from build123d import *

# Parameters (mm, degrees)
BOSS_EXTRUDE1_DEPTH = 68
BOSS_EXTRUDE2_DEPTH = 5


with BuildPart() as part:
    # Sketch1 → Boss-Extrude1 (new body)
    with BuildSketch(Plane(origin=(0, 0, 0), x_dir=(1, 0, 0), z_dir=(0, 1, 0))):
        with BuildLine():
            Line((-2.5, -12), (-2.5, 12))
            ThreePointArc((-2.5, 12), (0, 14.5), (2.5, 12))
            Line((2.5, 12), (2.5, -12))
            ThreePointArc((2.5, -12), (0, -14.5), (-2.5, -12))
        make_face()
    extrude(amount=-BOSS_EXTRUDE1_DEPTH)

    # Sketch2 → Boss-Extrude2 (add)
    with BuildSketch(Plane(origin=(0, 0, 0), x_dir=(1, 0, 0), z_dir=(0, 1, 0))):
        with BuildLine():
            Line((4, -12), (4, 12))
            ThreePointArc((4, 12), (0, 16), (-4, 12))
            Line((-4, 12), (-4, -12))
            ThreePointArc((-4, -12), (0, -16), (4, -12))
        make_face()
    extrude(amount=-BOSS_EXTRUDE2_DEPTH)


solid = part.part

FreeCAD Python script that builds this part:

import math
import FreeCAD as App
import Part
import Sketcher
Q = App.Units.Quantity

doc = App.newDocument("Part")
body = doc.addObject("PartDesign::Body", "Body")

# Sketch on XZ plane
sketch1 = doc.addObject("Sketcher::SketchObject", "Sketch")
body.addObject(sketch1)
sketch1.AttachmentSupport = (doc.XZ_Plane, [""])
sketch1.MapMode = "FlatFace"
sketch1.addGeometry([
    Part.LineSegment(App.Vector(-2.5, -12, 0), App.Vector(-2.5, 12, 0)),
    Part.ArcOfCircle(Part.Circle(App.Vector(0, 12, 0), App.Vector(0, 0, 1), 2.5), math.radians(0), math.radians(180)),
    Part.LineSegment(App.Vector(2.5, 12, 0), App.Vector(2.5, -12, 0)),
    Part.ArcOfCircle(Part.Circle(App.Vector(0, -12, 0), App.Vector(0, 0, 1), 2.5), math.radians(180), math.radians(360)),
], False)
sketch1.addConstraint([
    Sketcher.Constraint("Tangent", 0, 2, 1, 2),
    Sketcher.Constraint("Tangent", 1, 1, 2, 1),
    Sketcher.Constraint("Tangent", 2, 2, 3, 2),
    Sketcher.Constraint("Tangent", 3, 1, 0, 1),
    Sketcher.Constraint("Vertical", 0),
    Sketcher.Constraint("Vertical", 2),
    Sketcher.Constraint("Symmetric", 1, 3, 3, 3, -1, 1),
    Sketcher.Constraint("Radius", 1, Q("2.5 mm")),
    Sketcher.Constraint("DistanceY", 0, 1, 0, 2, Q("24 mm")),
])
pad1 = doc.addObject("PartDesign::Pad", "Pad")
body.addObject(pad1)
pad1.Profile = sketch1
pad1.Length = 68

# Sketch on XZ plane
sketch2 = doc.addObject("Sketcher::SketchObject", "Sketch001")
body.addObject(sketch2)
sketch2.AttachmentSupport = (doc.XZ_Plane, [""])
sketch2.MapMode = "FlatFace"
sketch2.addGeometry([
    Part.LineSegment(App.Vector(4, 12, 0), App.Vector(4, -12, 0)),
    Part.ArcOfCircle(Part.Circle(App.Vector(0, -12, 0), App.Vector(0, 0, 1), 4), math.radians(180), math.radians(360)),
    Part.LineSegment(App.Vector(-4, -12, 0), App.Vector(-4, 12, 0)),
    Part.ArcOfCircle(Part.Circle(App.Vector(0, 12, 0), App.Vector(0, 0, 1), 4), math.radians(0), math.radians(180)),
], False)
sketch2.addConstraint([
    Sketcher.Constraint("Tangent", 0, 2, 1, 2),
    Sketcher.Constraint("Tangent", 1, 1, 2, 1),
    Sketcher.Constraint("Tangent", 2, 2, 3, 2),
    Sketcher.Constraint("Tangent", 3, 1, 0, 1),
    Sketcher.Constraint("Vertical", 0),
    Sketcher.Constraint("Vertical", 2),
    Sketcher.Constraint("Symmetric", 1, 3, 3, 3, -1, 1),
    Sketcher.Constraint("Radius", 1, Q("4 mm")),
    Sketcher.Constraint("DistanceY", 0, 2, 0, 1, Q("24 mm")),
])
pad2 = doc.addObject("PartDesign::Pad", "Pad001")
body.addObject(pad2)
pad2.Profile = sketch2
pad2.Length = 5

doc.recompute()
